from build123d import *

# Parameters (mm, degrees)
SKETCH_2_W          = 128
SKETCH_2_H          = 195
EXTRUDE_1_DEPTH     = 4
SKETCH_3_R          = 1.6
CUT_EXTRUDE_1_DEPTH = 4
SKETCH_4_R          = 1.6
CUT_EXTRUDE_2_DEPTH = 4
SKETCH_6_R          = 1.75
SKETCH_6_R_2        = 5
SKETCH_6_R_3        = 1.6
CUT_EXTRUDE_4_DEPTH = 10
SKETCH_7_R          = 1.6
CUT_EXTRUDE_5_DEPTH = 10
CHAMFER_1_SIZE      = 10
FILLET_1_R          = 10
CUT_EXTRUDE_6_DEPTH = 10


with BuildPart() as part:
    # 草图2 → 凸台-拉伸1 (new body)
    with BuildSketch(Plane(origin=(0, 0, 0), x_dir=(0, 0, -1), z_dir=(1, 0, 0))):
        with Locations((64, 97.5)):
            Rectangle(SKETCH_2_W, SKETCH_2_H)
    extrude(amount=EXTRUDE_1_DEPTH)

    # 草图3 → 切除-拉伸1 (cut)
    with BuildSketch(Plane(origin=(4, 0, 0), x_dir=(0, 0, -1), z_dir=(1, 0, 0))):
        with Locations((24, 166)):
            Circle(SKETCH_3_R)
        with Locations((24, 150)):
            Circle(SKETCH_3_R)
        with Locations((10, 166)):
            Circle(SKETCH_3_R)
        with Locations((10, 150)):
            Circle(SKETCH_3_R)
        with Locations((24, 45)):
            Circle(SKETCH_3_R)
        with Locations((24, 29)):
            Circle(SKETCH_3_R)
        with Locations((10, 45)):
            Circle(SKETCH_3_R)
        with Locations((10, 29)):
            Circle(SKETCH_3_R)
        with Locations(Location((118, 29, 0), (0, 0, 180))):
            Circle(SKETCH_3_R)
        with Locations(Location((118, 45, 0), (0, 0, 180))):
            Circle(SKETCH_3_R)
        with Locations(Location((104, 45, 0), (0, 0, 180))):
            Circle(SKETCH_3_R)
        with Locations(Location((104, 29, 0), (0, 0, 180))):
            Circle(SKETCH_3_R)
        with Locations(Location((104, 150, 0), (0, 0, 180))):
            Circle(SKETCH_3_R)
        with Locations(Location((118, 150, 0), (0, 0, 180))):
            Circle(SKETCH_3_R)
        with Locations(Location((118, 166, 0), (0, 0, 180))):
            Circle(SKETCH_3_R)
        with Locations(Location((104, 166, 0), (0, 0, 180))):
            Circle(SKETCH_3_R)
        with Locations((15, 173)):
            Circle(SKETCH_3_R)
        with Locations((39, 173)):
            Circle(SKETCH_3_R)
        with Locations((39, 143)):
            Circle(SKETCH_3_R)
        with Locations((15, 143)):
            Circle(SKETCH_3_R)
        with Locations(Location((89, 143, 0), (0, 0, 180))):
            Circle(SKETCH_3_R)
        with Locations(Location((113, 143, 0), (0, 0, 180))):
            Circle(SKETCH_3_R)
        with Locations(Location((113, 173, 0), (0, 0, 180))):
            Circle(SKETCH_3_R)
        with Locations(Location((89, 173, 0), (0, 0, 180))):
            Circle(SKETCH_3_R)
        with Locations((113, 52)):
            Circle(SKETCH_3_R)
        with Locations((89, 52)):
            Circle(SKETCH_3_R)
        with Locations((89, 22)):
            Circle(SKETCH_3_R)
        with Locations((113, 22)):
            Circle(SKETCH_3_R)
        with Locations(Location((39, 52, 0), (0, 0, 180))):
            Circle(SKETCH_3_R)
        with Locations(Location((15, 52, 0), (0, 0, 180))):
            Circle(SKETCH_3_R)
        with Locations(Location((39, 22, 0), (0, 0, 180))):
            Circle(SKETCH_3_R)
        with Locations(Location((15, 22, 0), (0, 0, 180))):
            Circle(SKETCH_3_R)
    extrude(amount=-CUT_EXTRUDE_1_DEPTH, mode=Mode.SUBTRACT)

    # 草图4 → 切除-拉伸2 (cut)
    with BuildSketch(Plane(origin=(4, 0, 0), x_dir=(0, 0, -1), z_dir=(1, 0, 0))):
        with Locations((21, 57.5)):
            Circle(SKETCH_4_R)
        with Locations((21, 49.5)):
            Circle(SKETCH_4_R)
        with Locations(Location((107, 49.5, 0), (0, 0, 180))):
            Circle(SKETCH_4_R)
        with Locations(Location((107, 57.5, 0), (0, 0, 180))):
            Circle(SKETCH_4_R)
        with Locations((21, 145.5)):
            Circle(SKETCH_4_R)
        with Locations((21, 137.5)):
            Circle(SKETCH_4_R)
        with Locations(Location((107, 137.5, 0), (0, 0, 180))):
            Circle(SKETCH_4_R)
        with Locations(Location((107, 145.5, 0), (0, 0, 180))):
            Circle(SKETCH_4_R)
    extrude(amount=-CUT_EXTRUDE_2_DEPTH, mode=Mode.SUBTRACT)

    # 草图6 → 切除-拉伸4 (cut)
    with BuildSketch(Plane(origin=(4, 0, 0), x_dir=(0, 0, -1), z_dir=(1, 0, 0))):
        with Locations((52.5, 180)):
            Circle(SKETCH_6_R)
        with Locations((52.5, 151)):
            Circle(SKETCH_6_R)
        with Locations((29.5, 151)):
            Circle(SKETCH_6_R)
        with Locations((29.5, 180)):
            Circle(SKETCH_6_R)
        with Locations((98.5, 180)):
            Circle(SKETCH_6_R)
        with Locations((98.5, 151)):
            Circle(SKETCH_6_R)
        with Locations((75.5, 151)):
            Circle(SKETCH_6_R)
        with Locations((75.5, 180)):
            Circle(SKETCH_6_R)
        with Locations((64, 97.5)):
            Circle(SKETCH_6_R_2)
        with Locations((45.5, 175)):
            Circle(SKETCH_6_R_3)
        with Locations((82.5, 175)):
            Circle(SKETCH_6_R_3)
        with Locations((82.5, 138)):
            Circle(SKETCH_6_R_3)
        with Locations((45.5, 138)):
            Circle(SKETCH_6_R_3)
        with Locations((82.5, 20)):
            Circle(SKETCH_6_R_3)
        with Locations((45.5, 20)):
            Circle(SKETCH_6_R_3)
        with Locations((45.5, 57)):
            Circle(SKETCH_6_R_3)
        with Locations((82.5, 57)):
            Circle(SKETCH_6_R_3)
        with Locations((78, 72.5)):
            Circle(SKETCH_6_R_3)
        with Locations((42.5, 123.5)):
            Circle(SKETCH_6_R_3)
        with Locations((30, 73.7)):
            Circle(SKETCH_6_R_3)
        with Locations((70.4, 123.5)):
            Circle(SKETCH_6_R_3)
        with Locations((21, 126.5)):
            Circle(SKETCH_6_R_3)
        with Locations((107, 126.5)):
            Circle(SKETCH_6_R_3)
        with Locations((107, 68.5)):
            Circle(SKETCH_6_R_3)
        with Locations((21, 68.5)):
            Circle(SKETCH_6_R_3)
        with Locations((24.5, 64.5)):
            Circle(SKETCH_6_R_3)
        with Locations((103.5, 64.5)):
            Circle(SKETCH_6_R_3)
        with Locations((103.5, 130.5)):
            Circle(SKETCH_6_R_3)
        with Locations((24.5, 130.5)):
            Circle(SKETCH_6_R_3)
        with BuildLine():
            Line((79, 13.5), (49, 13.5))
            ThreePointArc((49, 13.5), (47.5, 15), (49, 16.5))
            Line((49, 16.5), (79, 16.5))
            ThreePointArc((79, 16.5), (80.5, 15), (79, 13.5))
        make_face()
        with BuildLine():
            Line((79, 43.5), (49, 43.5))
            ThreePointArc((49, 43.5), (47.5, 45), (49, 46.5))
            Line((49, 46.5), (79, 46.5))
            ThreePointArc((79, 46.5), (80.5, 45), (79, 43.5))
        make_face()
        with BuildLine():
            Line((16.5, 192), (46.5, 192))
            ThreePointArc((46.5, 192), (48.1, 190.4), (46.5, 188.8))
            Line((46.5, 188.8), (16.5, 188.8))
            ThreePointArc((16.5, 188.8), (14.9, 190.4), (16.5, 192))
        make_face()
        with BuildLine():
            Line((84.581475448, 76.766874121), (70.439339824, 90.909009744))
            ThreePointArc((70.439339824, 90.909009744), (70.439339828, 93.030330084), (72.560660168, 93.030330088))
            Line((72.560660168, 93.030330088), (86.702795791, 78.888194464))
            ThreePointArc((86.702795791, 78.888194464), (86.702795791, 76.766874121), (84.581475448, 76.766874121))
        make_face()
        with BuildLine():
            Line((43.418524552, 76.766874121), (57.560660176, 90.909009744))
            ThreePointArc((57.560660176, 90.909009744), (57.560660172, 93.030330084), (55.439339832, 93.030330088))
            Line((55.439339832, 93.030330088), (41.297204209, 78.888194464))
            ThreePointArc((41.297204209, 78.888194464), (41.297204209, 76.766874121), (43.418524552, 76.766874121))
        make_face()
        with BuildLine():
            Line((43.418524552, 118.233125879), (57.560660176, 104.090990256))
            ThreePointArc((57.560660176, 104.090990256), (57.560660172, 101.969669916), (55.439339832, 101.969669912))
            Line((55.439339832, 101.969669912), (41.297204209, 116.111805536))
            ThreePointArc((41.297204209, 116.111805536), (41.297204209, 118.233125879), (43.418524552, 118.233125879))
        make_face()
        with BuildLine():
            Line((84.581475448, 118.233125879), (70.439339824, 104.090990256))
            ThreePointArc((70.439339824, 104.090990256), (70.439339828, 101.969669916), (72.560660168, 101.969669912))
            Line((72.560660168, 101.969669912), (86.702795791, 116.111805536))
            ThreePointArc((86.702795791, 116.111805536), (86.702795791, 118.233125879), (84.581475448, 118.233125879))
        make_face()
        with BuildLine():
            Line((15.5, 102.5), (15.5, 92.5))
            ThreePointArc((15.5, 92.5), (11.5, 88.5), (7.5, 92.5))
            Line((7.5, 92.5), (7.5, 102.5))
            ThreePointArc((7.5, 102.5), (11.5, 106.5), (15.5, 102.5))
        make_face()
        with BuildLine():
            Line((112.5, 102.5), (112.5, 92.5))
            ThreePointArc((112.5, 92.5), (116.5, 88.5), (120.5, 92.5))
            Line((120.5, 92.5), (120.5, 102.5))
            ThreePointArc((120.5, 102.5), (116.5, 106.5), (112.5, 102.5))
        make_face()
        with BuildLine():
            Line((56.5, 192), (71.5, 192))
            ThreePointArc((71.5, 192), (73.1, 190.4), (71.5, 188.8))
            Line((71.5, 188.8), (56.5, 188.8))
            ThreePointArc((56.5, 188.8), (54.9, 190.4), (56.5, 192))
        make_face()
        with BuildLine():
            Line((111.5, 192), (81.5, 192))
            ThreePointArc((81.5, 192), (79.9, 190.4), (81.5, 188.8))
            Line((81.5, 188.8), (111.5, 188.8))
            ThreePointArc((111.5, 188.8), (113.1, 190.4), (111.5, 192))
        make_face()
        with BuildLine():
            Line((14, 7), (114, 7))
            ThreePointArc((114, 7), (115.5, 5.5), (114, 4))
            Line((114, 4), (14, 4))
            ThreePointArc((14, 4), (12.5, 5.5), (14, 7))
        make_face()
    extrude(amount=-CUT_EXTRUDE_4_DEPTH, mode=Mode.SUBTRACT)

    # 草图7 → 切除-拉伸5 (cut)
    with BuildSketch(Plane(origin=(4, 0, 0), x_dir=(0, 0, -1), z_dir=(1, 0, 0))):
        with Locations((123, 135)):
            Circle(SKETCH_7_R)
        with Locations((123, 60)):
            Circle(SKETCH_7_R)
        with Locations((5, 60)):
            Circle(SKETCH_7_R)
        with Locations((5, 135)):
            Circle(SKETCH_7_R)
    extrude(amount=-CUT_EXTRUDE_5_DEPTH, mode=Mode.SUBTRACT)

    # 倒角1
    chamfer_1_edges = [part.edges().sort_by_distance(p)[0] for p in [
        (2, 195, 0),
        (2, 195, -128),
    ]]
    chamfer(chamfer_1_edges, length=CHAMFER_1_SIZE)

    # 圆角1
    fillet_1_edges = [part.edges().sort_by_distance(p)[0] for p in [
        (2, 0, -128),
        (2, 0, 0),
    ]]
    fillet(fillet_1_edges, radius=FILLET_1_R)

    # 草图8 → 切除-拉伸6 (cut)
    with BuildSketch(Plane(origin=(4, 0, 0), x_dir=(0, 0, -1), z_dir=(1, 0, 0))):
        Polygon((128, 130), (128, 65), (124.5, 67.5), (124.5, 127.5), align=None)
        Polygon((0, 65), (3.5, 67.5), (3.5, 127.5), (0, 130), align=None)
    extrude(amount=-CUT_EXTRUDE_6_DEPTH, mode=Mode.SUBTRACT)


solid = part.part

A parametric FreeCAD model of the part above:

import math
import FreeCAD as App
import Part
import Sketcher
from FreeCAD import Vector


def edges_at(feature, points):
    """Names of the edges that pass closest to the given points."""
    edges = feature.Shape.Edges
    near = lambda p: min(range(len(edges)), key=lambda i: edges[i].distToShape(Part.Vertex(*p))[0])
    return sorted({f"Edge{near(p) + 1}" for p in points})


def add_polygon(sketch, points):
    """Adds a closed chain of lines whose ends are joined by coincident constraints."""
    first, n = sketch.GeometryCount, len(points)
    for a, b in zip(points, points[1:] + points[:1]):
        sketch.addGeometry(Part.LineSegment(App.Vector(*a, 0), App.Vector(*b, 0)), False)
    for i in range(n):
        sketch.addConstraint(Sketcher.Constraint("Coincident", first + i, 2, first + (i + 1) % n, 1))

doc = App.newDocument("Part")
body = doc.addObject("PartDesign::Body", "Body")

# Sketch on YZ plane
sketch1 = body.newObject("Sketcher::SketchObject", "Sketch")
sketch1.AttachmentSupport = (doc.getObject("YZ_Plane"), [""])
sketch1.MapMode = "FlatFace"
add_polygon(sketch1, [(195, 0), (0, 0), (0, -128), (195, -128)])  # lines 0-3
sketch1.addConstraint(Sketcher.Constraint("Horizontal", 0))
sketch1.addConstraint(Sketcher.Constraint("Vertical", 1))
sketch1.addConstraint(Sketcher.Constraint("Horizontal", 2))
sketch1.addConstraint(Sketcher.Constraint("Vertical", 3))
sketch1.addConstraint(Sketcher.Constraint("Coincident", 0, 2, -1, 1))
sketch1.addConstraint(Sketcher.Constraint("DistanceX", 0, 2, 0, 1, 195.0))
sketch1.addConstraint(Sketcher.Constraint("DistanceY", 1, 2, 1, 1, 128.0))
pad1 = body.newObject("PartDesign::Pad", "Pad")
pad1.Profile = sketch1
pad1.Length = 4

# Sketch on YZ plane
sketch2 = body.newObject("Sketcher::SketchObject", "Sketch001")
sketch2.AttachmentSupport = (doc.getObject("YZ_Plane"), [""])
sketch2.MapMode = "FlatFace"
sketch2.AttachmentOffset = App.Placement(Vector(0, 0, 4), App.Rotation())
sketch2.addGeometry(Part.Circle(Vector(166, -24, 0), Vector(0, 0, 1), 1.6), False)
sketch2.addGeometry(Part.Circle(Vector(150, -24, 0), Vector(0, 0, 1), 1.6), False)
sketch2.addGeometry(Part.Circle(Vector(166, -10, 0), Vector(0, 0, 1), 1.6), False)
sketch2.addGeometry(Part.Circle(Vector(150, -10, 0), Vector(0, 0, 1), 1.6), False)
sketch2.addGeometry(Part.Circle(Vector(45, -24, 0), Vector(0, 0, 1), 1.6), False)
sketch2.addGeometry(Part.Circle(Vector(29, -24, 0), Vector(0, 0, 1), 1.6), False)
sketch2.addGeometry(Part.Circle(Vector(45, -10, 0), Vector(0, 0, 1), 1.6), False)
sketch2.addGeometry(Part.Circle(Vector(29, -10, 0), Vector(0, 0, 1), 1.6), False)
sketch2.addGeometry(Part.Circle(Vector(29, -118, 0), Vector(0, 0, 1), 1.6), False)
sketch2.addGeometry(Part.Circle(Vector(45, -118, 0), Vector(0, 0, 1), 1.6), False)
sketch2.addGeometry(Part.Circle(Vector(45, -104, 0), Vector(0, 0, 1), 1.6), False)
sketch2.addGeometry(Part.Circle(Vector(29, -104, 0), Vector(0, 0, 1), 1.6), False)
sketch2.addGeometry(Part.Circle(Vector(150, -104, 0), Vector(0, 0, 1), 1.6), False)
sketch2.addGeometry(Part.Circle(Vector(150, -118, 0), Vector(0, 0, 1), 1.6), False)
sketch2.addGeometry(Part.Circle(Vector(166, -118, 0), Vector(0, 0, 1), 1.6), False)
sketch2.addGeometry(Part.Circle(Vector(166, -104, 0), Vector(0, 0, 1), 1.6), False)
sketch2.addGeometry(Part.Circle(Vector(173, -15, 0), Vector(0, 0, 1), 1.6), False)
sketch2.addGeometry(Part.Circle(Vector(173, -39, 0), Vector(0, 0, 1), 1.6), False)
sketch2.addGeometry(Part.Circle(Vector(143, -39, 0), Vector(0, 0, 1), 1.6), False)
sketch2.addGeometry(Part.Circle(Vector(143, -15, 0), Vector(0, 0, 1), 1.6), False)
sketch2.addGeometry(Part.Circle(Vector(143, -89, 0), Vector(0, 0, 1), 1.6), False)
sketch2.addGeometry(Part.Circle(Vector(143, -113, 0), Vector(0, 0, 1), 1.6), False)
sketch2.addGeometry(Part.Circle(Vector(173, -113, 0), Vector(0, 0, 1), 1.6), False)
sketch2.addGeometry(Part.Circle(Vector(173, -89, 0), Vector(0, 0, 1), 1.6), False)
sketch2.addGeometry(Part.Circle(Vector(52, -113, 0), Vector(0, 0, 1), 1.6), False)
sketch2.addGeometry(Part.Circle(Vector(52, -89, 0), Vector(0, 0, 1), 1.6), False)
sketch2.addGeometry(Part.Circle(Vector(22, -89, 0), Vector(0, 0, 1), 1.6), False)
sketch2.addGeometry(Part.Circle(Vector(22, -113, 0), Vector(0, 0, 1), 1.6), False)
sketch2.addGeometry(Part.Circle(Vector(52, -39, 0), Vector(0, 0, 1), 1.6), False)
sketch2.addGeometry(Part.Circle(Vector(52, -15, 0), Vector(0, 0, 1), 1.6), False)
sketch2.addGeometry(Part.Circle(Vector(22, -39, 0), Vector(0, 0, 1), 1.6), False)
sketch2.addGeometry(Part.Circle(Vector(22, -15, 0), Vector(0, 0, 1), 1.6), False)
sketch2.addConstraint(Sketcher.Constraint("Equal", 0, 1))
sketch2.addConstraint(Sketcher.Constraint("Equal", 1, 2))
sketch2.addConstraint(Sketcher.Constraint("Equal", 2, 3))
sketch2.addConstraint(Sketcher.Constraint("Equal", 3, 4))
sketch2.addConstraint(Sketcher.Constraint("Equal", 4, 5))
sketch2.addConstraint(Sketcher.Constraint("Equal", 5, 6))
sketch2.addConstraint(Sketcher.Constraint("Equal", 6, 7))
sketch2.addConstraint(Sketcher.Constraint("Equal", 7, 8))
sketch2.addConstraint(Sketcher.Constraint("Equal", 8, 9))
sketch2.addConstraint(Sketcher.Constraint("Equal", 9, 10))
sketch2.addConstraint(Sketcher.Constraint("Equal", 10, 11))
sketch2.addConstraint(Sketcher.Constraint("Equal", 11, 12))
sketch2.addConstraint(Sketcher.Constraint("Equal", 12, 13))
sketch2.addConstraint(Sketcher.Constraint("Equal", 13, 14))
sketch2.addConstraint(Sketcher.Constraint("Equal", 14, 15))
sketch2.addConstraint(Sketcher.Constraint("Equal", 15, 16))
sketch2.addConstraint(Sketcher.Constraint("Equal", 16, 17))
sketch2.addConstraint(Sketcher.Constraint("Equal", 17, 18))
sketch2.addConstraint(Sketcher.Constraint("Equal", 18, 19))
sketch2.addConstraint(Sketcher.Constraint("Equal", 19, 20))
sketch2.addConstraint(Sketcher.Constraint("Equal", 20, 21))
sketch2.addConstraint(Sketcher.Constraint("Equal", 21, 22))
sketch2.addConstraint(Sketcher.Constraint("Equal", 22, 23))
sketch2.addConstraint(Sketcher.Constraint("Equal", 23, 24))
sketch2.addConstraint(Sketcher.Constraint("Equal", 24, 25))
sketch2.addConstraint(Sketcher.Constraint("Equal", 25, 26))
sketch2.addConstraint(Sketcher.Constraint("Equal", 26, 27))
sketch2.addConstraint(Sketcher.Constraint("Equal", 27, 28))
sketch2.addConstraint(Sketcher.Constraint("Equal", 28, 29))
sketch2.addConstraint(Sketcher.Constraint("Equal", 29, 30))
sketch2.addConstraint(Sketcher.Constraint("Equal", 30, 31))
sketch2.addConstraint(Sketcher.Constraint("Horizontal", 0, 3, 1, 3))
sketch2.addConstraint(Sketcher.Constraint("Horizontal", 2, 3, 3, 3))
sketch2.addConstraint(Sketcher.Constraint("Horizontal", 1, 3, 4, 3))
sketch2.addConstraint(Sketcher.Constraint("Horizontal", 4, 3, 5, 3))
sketch2.addConstraint(Sketcher.Constraint("Horizontal", 3, 3, 6, 3))
sketch2.addConstraint(Sketcher.Constraint("Horizontal", 6, 3, 7, 3))
sketch2.addConstraint(Sketcher.Constraint("Horizontal", 8, 3, 9, 3))
sketch2.addConstraint(Sketcher.Constraint("Horizontal", 10, 3, 11, 3))
sketch2.addConstraint(Sketcher.Constraint("Horizontal", 11, 3, 12, 3))
sketch2.addConstraint(Sketcher.Constraint("Horizontal", 9, 3, 13, 3))
sketch2.addConstraint(Sketcher.Constraint("Horizontal", 13, 3, 14, 3))
sketch2.addConstraint(Sketcher.Constraint("Horizontal", 12, 3, 15, 3))
sketch2.addConstraint(Sketcher.Constraint("Horizontal", 17, 3, 18, 3))
sketch2.addConstraint(Sketcher.Constraint("Horizontal", 16, 3, 19, 3))
sketch2.addConstraint(Sketcher.Constraint("Horizontal", 21, 3, 22, 3))
sketch2.addConstraint(Sketcher.Constraint("Horizontal", 20, 3, 23, 3))
sketch2.addConstraint(Sketcher.Constraint("Horizontal", 22, 3, 24, 3))
sketch2.addConstraint(Sketcher.Constraint("Horizontal", 23, 3, 25, 3))
sketch2.addConstraint(Sketcher.Constraint("Horizontal", 25, 3, 26, 3))
sketch2.addConstraint(Sketcher.Constraint("Horizontal", 24, 3, 27, 3))
sketch2.addConstraint(Sketcher.Constraint("Horizontal", 18, 3, 28, 3))
sketch2.addConstraint(Sketcher.Constraint("Horizontal", 19, 3, 29, 3))
sketch2.addConstraint(Sketcher.Constraint("Horizontal", 28, 3, 30, 3))
sketch2.addConstraint(Sketcher.Constraint("Horizontal", 29, 3, 31, 3))
sketch2.addConstraint(Sketcher.Constraint("Vertical", 0, 3, 2, 3))
sketch2.addConstraint(Sketcher.Constraint("Vertical", 1, 3, 3, 3))
sketch2.addConstraint(Sketcher.Constraint("Vertical", 4, 3, 6, 3))
sketch2.addConstraint(Sketcher.Constraint("Vertical", 5, 3, 7, 3))
sketch2.addConstraint(Sketcher.Constraint("Vertical", 7, 3, 8, 3))
sketch2.addConstraint(Sketcher.Constraint("Vertical", 6, 3, 9, 3))
sketch2.addConstraint(Sketcher.Constraint("Vertical", 9, 3, 10, 3))
sketch2.addConstraint(Sketcher.Constraint("Vertical", 8, 3, 11, 3))
sketch2.addConstraint(Sketcher.Constraint("Vertical", 3, 3, 12, 3))
sketch2.addConstraint(Sketcher.Constraint("Vertical", 12, 3, 13, 3))
sketch2.addConstraint(Sketcher.Constraint("Vertical", 2, 3, 14, 3))
sketch2.addConstraint(Sketcher.Constraint("Vertical", 14, 3, 15, 3))
sketch2.addConstraint(Sketcher.Constraint("Vertical", 16, 3, 17, 3))
sketch2.addConstraint(Sketcher.Constraint("Vertical", 18, 3, 19, 3))
sketch2.addConstraint(Sketcher.Constraint("Vertical", 19, 3, 20, 3))
sketch2.addConstraint(Sketcher.Constraint("Vertical", 20, 3, 21, 3))
sketch2.addConstraint(Sketcher.Constraint("Vertical", 17, 3, 22, 3))
sketch2.addConstraint(Sketcher.Constraint("Vertical", 22, 3, 23, 3))
sketch2.addConstraint(Sketcher.Constraint("Vertical", 24, 3, 25, 3))
sketch2.addConstraint(Sketcher.Constraint("Vertical", 26, 3, 27, 3))
sketch2.addConstraint(Sketcher.Constraint("Vertical", 25, 3, 28, 3))
sketch2.addConstraint(Sketcher.Constraint("Vertical", 28, 3, 29, 3))
sketch2.addConstraint(Sketcher.Constraint("Vertical", 27, 3, 30, 3))
sketch2.addConstraint(Sketcher.Constraint("Vertical", 30, 3, 31, 3))
sketch2.addConstraint(Sketcher.Constraint("Diameter", 0, 3.2))
sketch2.addConstraint(Sketcher.Constraint("DistanceX", -1, 1, 0, 3, 166.0))
sketch2.addConstraint(Sketcher.Constraint("DistanceY", 0, 3, -1, 1, 24.0))
sketch2.addConstraint(Sketcher.Constraint("DistanceX", -1, 1, 1, 3, 150.0))
sketch2.addConstraint(Sketcher.Constraint("DistanceY", 2, 3, -1, 1, 10.0))
sketch2.addConstraint(Sketcher.Constraint("DistanceX", -1, 1, 4, 3, 45.0))
sketch2.addConstraint(Sketcher.Constraint("DistanceX", -1, 1, 5, 3, 29.0))
sketch2.addConstraint(Sketcher.Constraint("DistanceY", 8, 3, -1, 1, 118.0))
sketch2.addConstraint(Sketcher.Constraint("DistanceY", 10, 3, -1, 1, 104.0))
sketch2.addConstraint(Sketcher.Constraint("DistanceX", -1, 1, 16, 3, 173.0))
sketch2.addConstraint(Sketcher.Constraint("DistanceY", 16, 3, -1, 1, 15.0))
sketch2.addConstraint(Sketcher.Constraint("DistanceY", 17, 3, -1, 1, 39.0))
sketch2.addConstraint(Sketcher.Constraint("DistanceX", -1, 1, 18, 3, 143.0))
sketch2.addConstraint(Sketcher.Constraint("DistanceY", 20, 3, -1, 1, 89.0))
sketch2.addConstraint(Sketcher.Constraint("DistanceY", 21, 3, -1, 1, 113.0))
sketch2.addConstraint(Sketcher.Constraint("DistanceX", -1, 1, 24, 3, 52.0))
sketch2.addConstraint(Sketcher.Constraint("DistanceX", -1, 1, 26, 3, 22.0))
pocket1 = body.newObject("PartDesign::Pocket", "Pocket")
pocket1.Profile = sketch2
pocket1.Length = 4

# Sketch on YZ plane
sketch3 = body.newObject("Sketcher::SketchObject", "Sketch002")
sketch3.AttachmentSupport = (doc.getObject("YZ_Plane"), [""])
sketch3.MapMode = "FlatFace"
sketch3.AttachmentOffset = App.Placement(Vector(0, 0, 4), App.Rotation())
sketch3.addGeometry(Part.Circle(Vector(57.5, -21, 0), Vector(0, 0, 1), 1.6), False)
sketch3.addGeometry(Part.Circle(Vector(49.5, -21, 0), Vector(0, 0, 1), 1.6), False)
sketch3.addGeometry(Part.Circle(Vector(49.5, -107, 0), Vector(0, 0, 1), 1.6), False)
sketch3.addGeometry(Part.Circle(Vector(57.5, -107, 0), Vector(0, 0, 1), 1.6), False)
sketch3.addGeometry(Part.Circle(Vector(145.5, -21, 0), Vector(0, 0, 1), 1.6), False)
sketch3.addGeometry(Part.Circle(Vector(137.5, -21, 0), Vector(0, 0, 1), 1.6), False)
sketch3.addGeometry(Part.Circle(Vector(137.5, -107, 0), Vector(0, 0, 1), 1.6), False)
sketch3.addGeometry(Part.Circle(Vector(145.5, -107, 0), Vector(0, 0, 1), 1.6), False)
sketch3.addConstraint(Sketcher.Constraint("Equal", 0, 1))
sketch3.addConstraint(Sketcher.Constraint("Equal", 1, 2))
sketch3.addConstraint(Sketcher.Constraint("Equal", 2, 3))
sketch3.addConstraint(Sketcher.Constraint("Equal", 3, 4))
sketch3.addConstraint(Sketcher.Constraint("Equal", 4, 5))
sketch3.addConstraint(Sketcher.Constraint("Equal", 5, 6))
sketch3.addConstraint(Sketcher.Constraint("Equal", 6, 7))
sketch3.addConstraint(Sketcher.Constraint("Horizontal", 0, 3, 1, 3))
sketch3.addConstraint(Sketcher.Constraint("Horizontal", 2, 3, 3, 3))
sketch3.addConstraint(Sketcher.Constraint("Horizontal", 1, 3, 4, 3))
sketch3.addConstraint(Sketcher.Constraint("Horizontal", 4, 3, 5, 3))
sketch3.addConstraint(Sketcher.Constraint("Horizontal", 3, 3, 6, 3))
sketch3.addConstraint(Sketcher.Constraint("Horizontal", 6, 3, 7, 3))
sketch3.addConstraint(Sketcher.Constraint("Vertical", 1, 3, 2, 3))
sketch3.addConstraint(Sketcher.Constraint("Vertical", 0, 3, 3, 3))
sketch3.addConstraint(Sketcher.Constraint("Vertical", 5, 3, 6, 3))
sketch3.addConstraint(Sketcher.Constraint("Vertical", 4, 3, 7, 3))
sketch3.addConstraint(Sketcher.Constraint("Diameter", 0, 3.2))
sketch3.addConstraint(Sketcher.Constraint("DistanceY", 0, 3, -1, 1, 21.0))
sketch3.addConstraint(Sketcher.Constraint("DistanceY", 2, 3, -1, 1, 107.0))
sketch3.addConstraint(Sketcher.Constraint("DistanceX", 1, 3, 0, 3, 8.0))
sketch3.addConstraint(Sketcher.Constraint("DistanceX", 0, 3, 4, 3, 88.0))
sketch3.addConstraint(Sketcher.Constraint("DistanceX", 5, 3, 4, 3, 8.0))
sketch3.addConstraint(Sketcher.Constraint("DistanceX", -1, 1, 0, 3, 57.5))
pocket2 = body.newObject("PartDesign::Pocket", "Pocket001")
pocket2.Profile = sketch3
pocket2.Length = 4

# Sketch on YZ plane
sketch4 = body.newObject("Sketcher::SketchObject", "Sketch003")
sketch4.AttachmentSupport = (doc.getObject("YZ_Plane"), [""])
sketch4.MapMode = "FlatFace"
sketch4.AttachmentOffset = App.Placement(Vector(0, 0, 4), App.Rotation())
sketch4.addGeometry(Part.Circle(Vector(180, -52.5, 0), Vector(0, 0, 1), 1.8), False)
sketch4.addGeometry(Part.Circle(Vector(151, -52.5, 0), Vector(0, 0, 1), 1.8), False)
sketch4.addGeometry(Part.Circle(Vector(151, -29.5, 0), Vector(0, 0, 1), 1.8), False)
sketch4.addGeometry(Part.Circle(Vector(180, -29.5, 0), Vector(0, 0, 1), 1.8), False)
sketch4.addGeometry(Part.Circle(Vector(180, -98.5, 0), Vector(0, 0, 1), 1.8), False)
sketch4.addGeometry(Part.Circle(Vector(151, -98.5, 0), Vector(0, 0, 1), 1.8), False)
sketch4.addGeometry(Part.Circle(Vector(151, -75.5, 0), Vector(0, 0, 1), 1.8), False)
sketch4.addGeometry(Part.Circle(Vector(180, -75.5, 0), Vector(0, 0, 1), 1.8), False)
sketch4.addGeometry(Part.Circle(Vector(97.5, -64, 0), Vector(0, 0, 1), 5), False)
sketch4.addGeometry(Part.Circle(Vector(175, -45.5, 0), Vector(0, 0, 1), 1.6), False)
sketch4.addGeometry(Part.Circle(Vector(175, -82.5, 0), Vector(0, 0, 1), 1.6), False)
sketch4.addGeometry(Part.Circle(Vector(138, -82.5, 0), Vector(0, 0, 1), 1.6), False)
sketch4.addGeometry(Part.Circle(Vector(138, -45.5, 0), Vector(0, 0, 1), 1.6), False)
sketch4.addGeometry(Part.Circle(Vector(20, -82.5, 0), Vector(0, 0, 1), 1.6), False)
sketch4.addGeometry(Part.Circle(Vector(20, -45.5, 0), Vector(0, 0, 1), 1.6), False)
sketch4.addGeometry(Part.Circle(Vector(57, -45.5, 0), Vector(0, 0, 1), 1.6), False)
sketch4.addGeometry(Part.Circle(Vector(57, -82.5, 0), Vector(0, 0, 1), 1.6), False)
sketch4.addGeometry(Part.Circle(Vector(72.5, -78, 0), Vector(0, 0, 1), 1.6), False)
sketch4.addGeometry(Part.Circle(Vector(123.5, -42.5, 0), Vector(0, 0, 1), 1.6), False)
sketch4.addGeometry(Part.Circle(Vector(73.7, -30, 0), Vector(0, 0, 1), 1.6), False)
sketch4.addGeometry(Part.Circle(Vector(123.5, -70.4, 0), Vector(0, 0, 1), 1.6), False)
sketch4.addGeometry(Part.Circle(Vector(126.5, -21, 0), Vector(0, 0, 1), 1.6), False)
sketch4.addGeometry(Part.Circle(Vector(126.5, -107, 0), Vector(0, 0, 1), 1.6), False)
sketch4.addGeometry(Part.Circle(Vector(68.5, -107, 0), Vector(0, 0, 1), 1.6), False)
sketch4.addGeometry(Part.Circle(Vector(68.5, -21, 0), Vector(0, 0, 1), 1.6), False)
sketch4.addGeometry(Part.Circle(Vector(64.5, -24.5, 0), Vector(0, 0, 1), 1.6), False)
sketch4.addGeometry(Part.Circle(Vector(64.5, -103.5, 0), Vector(0, 0, 1), 1.6), False)
sketch4.addGeometry(Part.Circle(Vector(130.5, -103.5, 0), Vector(0, 0, 1), 1.6), False)
sketch4.addGeometry(Part.Circle(Vector(130.5, -24.5, 0), Vector(0, 0, 1), 1.6), False)
sketch4.addGeometry(Part.LineSegment(Vector(13.5, -49, 0), Vector(13.5, -79, 0)), False)
sketch4.addGeometry(Part.ArcOfCircle(Part.Circle(Vector(15, -79, 0), Vector(0, 0, 1), 1.5), math.radians(180), math.radians(360)), False)
sketch4.addGeometry(Part.LineSegment(Vector(16.5, -79, 0), Vector(16.5, -49, 0)), False)
sketch4.addGeometry(Part.ArcOfCircle(Part.Circle(Vector(15, -49, 0), Vector(0, 0, 1), 1.5), math.radians(0), math.radians(180)), False)
sketch4.addGeometry(Part.LineSegment(Vector(43.5, -49, 0), Vector(43.5, -79, 0)), False)
sketch4.addGeometry(Part.ArcOfCircle(Part.Circle(Vector(45, -79, 0), Vector(0, 0, 1), 1.5), math.radians(180), math.radians(360)), False)
sketch4.addGeometry(Part.LineSegment(Vector(46.5, -79, 0), Vector(46.5, -49, 0)), False)
sketch4.addGeometry(Part.ArcOfCircle(Part.Circle(Vector(45, -49, 0), Vector(0, 0, 1), 1.5), math.radians(0), math.radians(180)), False)
sketch4.addGeometry(Part.LineSegment(Vector(192, -46.5, 0), Vector(192, -16.5, 0)), False)
sketch4.addGeometry(Part.ArcOfCircle(Part.Circle(Vector(190.4, -16.5, 0), Vector(0, 0, 1), 1.6), math.radians(0), math.radians(180)), False)
sketch4.addGeometry(Part.LineSegment(Vector(188.8, -16.5, 0), Vector(188.8, -46.5, 0)), False)
sketch4.addGeometry(Part.ArcOfCircle(Part.Circle(Vector(190.4, -46.5, 0), Vector(0, 0, 1), 1.6), math.radians(180), math.radians(360)), False)
sketch4.addGeometry(Part.LineSegment(Vector(90.9, -70.4, 0), Vector(76.8, -84.6, 0)), False)
sketch4.addGeometry(Part.ArcOfCircle(Part.Circle(Vector(77.8, -85.6, 0), Vector(0, 0, 1), 1.5), math.radians(135), math.radians(315)), False)
sketch4.addGeometry(Part.LineSegment(Vector(78.9, -86.7, 0), Vector(93, -72.6, 0)), False)
sketch4.addGeometry(Part.ArcOfCircle(Part.Circle(Vector(92, -71.5, 0), Vector(0, 0, 1), 1.5), math.radians(-45), math.radians(135)), False)
sketch4.addGeometry(Part.LineSegment(Vector(76.8, -43.4, 0), Vector(90.9, -57.6, 0)), False)
sketch4.addGeometry(Part.ArcOfCircle(Part.Circle(Vector(92, -56.5, 0), Vector(0, 0, 1), 1.5), math.radians(-135), math.radians(45)), False)
sketch4.addGeometry(Part.LineSegment(Vector(93, -55.4, 0), Vector(78.9, -41.3, 0)), False)
sketch4.addGeometry(Part.ArcOfCircle(Part.Circle(Vector(77.8, -42.4, 0), Vector(0, 0, 1), 1.5), math.radians(45), math.radians(225)), False)
sketch4.addGeometry(Part.LineSegment(Vector(104.1, -57.6, 0), Vector(118.2, -43.4, 0)), False)
sketch4.addGeometry(Part.ArcOfCircle(Part.Circle(Vector(117.2, -42.4, 0), Vector(0, 0, 1), 1.5), math.radians(-45), math.radians(135)), False)
sketch4.addGeometry(Part.LineSegment(Vector(116.1, -41.3, 0), Vector(102, -55.4, 0)), False)
sketch4.addGeometry(Part.ArcOfCircle(Part.Circle(Vector(103, -56.5, 0), Vector(0, 0, 1), 1.5), math.radians(135), math.radians(315)), False)
sketch4.addGeometry(Part.LineSegment(Vector(118.2, -84.6, 0), Vector(104.1, -70.4, 0)), False)
sketch4.addGeometry(Part.ArcOfCircle(Part.Circle(Vector(103, -71.5, 0), Vector(0, 0, 1), 1.5), math.radians(45), math.radians(225)), False)
sketch4.addGeometry(Part.LineSegment(Vector(102, -72.6, 0), Vector(116.1, -86.7, 0)), False)
sketch4.addGeometry(Part.ArcOfCircle(Part.Circle(Vector(117.2, -85.6, 0), Vector(0, 0, 1), 1.5), math.radians(-135), math.radians(45)), False)
sketch4.addGeometry(Part.LineSegment(Vector(92.5, -15.5, 0), Vector(102.5, -15.5, 0)), False)
sketch4.addGeometry(Part.ArcOfCircle(Part.Circle(Vector(102.5, -11.5, 0), Vector(0, 0, 1), 4), math.radians(-90), math.radians(90)), False)
sketch4.addGeometry(Part.LineSegment(Vector(102.5, -7.5, 0), Vector(92.5, -7.5, 0)), False)
sketch4.addGeometry(Part.ArcOfCircle(Part.Circle(Vector(92.5, -11.5, 0), Vector(0, 0, 1), 4), math.radians(90), math.radians(270)), False)
sketch4.addGeometry(Part.LineSegment(Vector(102.5, -112.5, 0), Vector(92.5, -112.5, 0)), False)
sketch4.addGeometry(Part.ArcOfCircle(Part.Circle(Vector(92.5, -116.5, 0), Vector(0, 0, 1), 4), math.radians(90), math.radians(270)), False)
sketch4.addGeometry(Part.LineSegment(Vector(92.5, -120.5, 0), Vector(102.5, -120.5, 0)), False)
sketch4.addGeometry(Part.ArcOfCircle(Part.Circle(Vector(102.5, -116.5, 0), Vector(0, 0, 1), 4), math.radians(-90), math.radians(90)), False)
sketch4.addGeometry(Part.LineSegment(Vector(192, -71.5, 0), Vector(192, -56.5, 0)), False)
sketch4.addGeometry(Part.ArcOfCircle(Part.Circle(Vector(190.4, -56.5, 0), Vector(0, 0, 1), 1.6), math.radians(0), math.radians(180)), False)
sketch4.addGeometry(Part.LineSegment(Vector(188.8, -56.5, 0), Vector(188.8, -71.5, 0)), False)
sketch4.addGeometry(Part.ArcOfCircle(Part.Circle(Vector(190.4, -71.5, 0), Vector(0, 0, 1), 1.6), math.radians(180), math.radians(360)), False)
sketch4.addGeometry(Part.LineSegment(Vector(192, -111.5, 0), Vector(192, -81.5, 0)), False)
sketch4.addGeometry(Part.ArcOfCircle(Part.Circle(Vector(190.4, -81.5, 0), Vector(0, 0, 1), 1.6), math.radians(0), math.radians(180)), False)
sketch4.addGeometry(Part.LineSegment(Vector(188.8, -81.5, 0), Vector(188.8, -111.5, 0)), False)
sketch4.addGeometry(Part.ArcOfCircle(Part.Circle(Vector(190.4, -111.5, 0), Vector(0, 0, 1), 1.6), math.radians(180), math.radians(360)), False)
sketch4.addGeometry(Part.LineSegment(Vector(7, -114, 0), Vector(7, -14, 0)), False)
sketch4.addGeometry(Part.ArcOfCircle(Part.Circle(Vector(5.5, -14, 0), Vector(0, 0, 1), 1.5), math.radians(0), math.radians(180)), False)
sketch4.addGeometry(Part.LineSegment(Vector(4, -14, 0), Vector(4, -114, 0)), False)
sketch4.addGeometry(Part.ArcOfCircle(Part.Circle(Vector(5.5, -114, 0), Vector(0, 0, 1), 1.5), math.radians(180), math.radians(360)), False)
sketch4.addConstraint(Sketcher.Constraint("Tangent", 29, 2, 30, 1))
sketch4.addConstraint(Sketcher.Constraint("Tangent", 30, 2, 31, 1))
sketch4.addConstraint(Sketcher.Constraint("Tangent", 31, 2, 32, 1))
sketch4.addConstraint(Sketcher.Constraint("Tangent", 32, 2, 29, 1))
sketch4.addConstraint(Sketcher.Constraint("Tangent", 33, 2, 34, 1))
sketch4.addConstraint(Sketcher.Constraint("Tangent", 34, 2, 35, 1))
sketch4.addConstraint(Sketcher.Constraint("Tangent", 35, 2, 36, 1))
sketch4.addConstraint(Sketcher.Constraint("Tangent", 36, 2, 33, 1))
sketch4.addConstraint(Sketcher.Constraint("Tangent", 37, 2, 38, 1))
sketch4.addConstraint(Sketcher.Constraint("Tangent", 38, 2, 39, 1))
sketch4.addConstraint(Sketcher.Constraint("Tangent", 39, 2, 40, 1))
sketch4.addConstraint(Sketcher.Constraint("Tangent", 40, 2, 37, 1))
sketch4.addConstraint(Sketcher.Constraint("Tangent", 41, 2, 42, 1))
sketch4.addConstraint(Sketcher.Constraint("Tangent", 42, 2, 43, 1))
sketch4.addConstraint(Sketcher.Constraint("Tangent", 43, 2, 44, 1))
sketch4.addConstraint(Sketcher.Constraint("Tangent", 44, 2, 41, 1))
sketch4.addConstraint(Sketcher.Constraint("Tangent", 45, 2, 46, 1))
sketch4.addConstraint(Sketcher.Constraint("Tangent", 46, 2, 47, 1))
sketch4.addConstraint(Sketcher.Constraint("Tangent", 47, 2, 48, 1))
sketch4.addConstraint(Sketcher.Constraint("Tangent", 48, 2, 45, 1))
sketch4.addConstraint(Sketcher.Constraint("Tangent", 49, 2, 50, 1))
sketch4.addConstraint(Sketcher.Constraint("Tangent", 50, 2, 51, 1))
sketch4.addConstraint(Sketcher.Constraint("Tangent", 51, 2, 52, 1))
sketch4.addConstraint(Sketcher.Constraint("Tangent", 52, 2, 49, 1))
sketch4.addConstraint(Sketcher.Constraint("Tangent", 53, 2, 54, 1))
sketch4.addConstraint(Sketcher.Constraint("Tangent", 54, 2, 55, 1))
sketch4.addConstraint(Sketcher.Constraint("Tangent", 55, 2, 56, 1))
sketch4.addConstraint(Sketcher.Constraint("Tangent", 56, 2, 53, 1))
sketch4.addConstraint(Sketcher.Constraint("Tangent", 57, 2, 58, 1))
sketch4.addConstraint(Sketcher.Constraint("Tangent", 58, 2, 59, 1))
sketch4.addConstraint(Sketcher.Constraint("Tangent", 59, 2, 60, 1))
sketch4.addConstraint(Sketcher.Constraint("Tangent", 60, 2, 57, 1))
sketch4.addConstraint(Sketcher.Constraint("Tangent", 61, 2, 62, 1))
sketch4.addConstraint(Sketcher.Constraint("Tangent", 62, 2, 63, 1))
sketch4.addConstraint(Sketcher.Constraint("Tangent", 63, 2, 64, 1))
sketch4.addConstraint(Sketcher.Constraint("Tangent", 64, 2, 61, 1))
sketch4.addConstraint(Sketcher.Constraint("Tangent", 65, 2, 66, 1))
sketch4.addConstraint(Sketcher.Constraint("Tangent", 66, 2, 67, 1))
sketch4.addConstraint(Sketcher.Constraint("Tangent", 67, 2, 68, 1))
sketch4.addConstraint(Sketcher.Constraint("Tangent", 68, 2, 65, 1))
sketch4.addConstraint(Sketcher.Constraint("Tangent", 69, 2, 70, 1))
sketch4.addConstraint(Sketcher.Constraint("Tangent", 70, 2, 71, 1))
sketch4.addConstraint(Sketcher.Constraint("Tangent", 71, 2, 72, 1))
sketch4.addConstraint(Sketcher.Constraint("Tangent", 72, 2, 69, 1))
sketch4.addConstraint(Sketcher.Constraint("Tangent", 73, 2, 74, 1))
sketch4.addConstraint(Sketcher.Constraint("Tangent", 74, 2, 75, 1))
sketch4.addConstraint(Sketcher.Constraint("Tangent", 75, 2, 76, 1))
sketch4.addConstraint(Sketcher.Constraint("Tangent", 76, 2, 73, 1))
sketch4.addConstraint(Sketcher.Constraint("Vertical", 29))
sketch4.addConstraint(Sketcher.Constraint("Vertical", 31))
sketch4.addConstraint(Sketcher.Constraint("Vertical", 33))
sketch4.addConstraint(Sketcher.Constraint("Vertical", 35))
sketch4.addConstraint(Sketcher.Constraint("Vertical", 37))
sketch4.addConstraint(Sketcher.Constraint("Vertical", 39))
sketch4.addConstraint(Sketcher.Constraint("Horizontal", 57))
sketch4.addConstraint(Sketcher.Constraint("Horizontal", 59))
sketch4.addConstraint(Sketcher.Constraint("Horizontal", 61))
sketch4.addConstraint(Sketcher.Constraint("Horizontal", 63))
sketch4.addConstraint(Sketcher.Constraint("Vertical", 65))
sketch4.addConstraint(Sketcher.Constraint("Vertical", 67))
sketch4.addConstraint(Sketcher.Constraint("Vertical", 69))
sketch4.addConstraint(Sketcher.Constraint("Vertical", 71))
sketch4.addConstraint(Sketcher.Constraint("Vertical", 73))
sketch4.addConstraint(Sketcher.Constraint("Vertical", 75))
sketch4.addConstraint(Sketcher.Constraint("Equal", 0, 1))
sketch4.addConstraint(Sketcher.Constraint("Equal", 1, 2))
sketch4.addConstraint(Sketcher.Constraint("Equal", 2, 3))
sketch4.addConstraint(Sketcher.Constraint("Equal", 3, 4))
sketch4.addConstraint(Sketcher.Constraint("Equal", 4, 5))
sketch4.addConstraint(Sketcher.Constraint("Equal", 5, 6))
sketch4.addConstraint(Sketcher.Constraint("Equal", 6, 7))
sketch4.addConstraint(Sketcher.Constraint("Equal", 9, 10))
sketch4.addConstraint(Sketcher.Constraint("Equal", 10, 11))
sketch4.addConstraint(Sketcher.Constraint("Equal", 11, 12))
sketch4.addConstraint(Sketcher.Constraint("Equal", 12, 13))
sketch4.addConstraint(Sketcher.Constraint("Equal", 13, 14))
sketch4.addConstraint(Sketcher.Constraint("Equal", 14, 15))
sketch4.addConstraint(Sketcher.Constraint("Equal", 15, 16))
sketch4.addConstraint(Sketcher.Constraint("Equal", 16, 17))
sketch4.addConstraint(Sketcher.Constraint("Equal", 17, 18))
sketch4.addConstraint(Sketcher.Constraint("Equal", 18, 19))
sketch4.addConstraint(Sketcher.Constraint("Equal", 19, 20))
sketch4.addConstraint(Sketcher.Constraint("Equal", 20, 21))
sketch4.addConstraint(Sketcher.Constraint("Equal", 21, 22))
sketch4.addConstraint(Sketcher.Constraint("Equal", 22, 23))
sketch4.addConstraint(Sketcher.Constraint("Equal", 23, 24))
sketch4.addConstraint(Sketcher.Constraint("Equal", 24, 25))
sketch4.addConstraint(Sketcher.Constraint("Equal", 25, 26))
sketch4.addConstraint(Sketcher.Constraint("Equal", 26, 27))
sketch4.addConstraint(Sketcher.Constraint("Equal", 27, 28))
sketch4.addConstraint(Sketcher.Constraint("Equal", 32, 34))
sketch4.addConstraint(Sketcher.Constraint("Equal", 28, 38))
sketch4.addConstraint(Sketcher.Constraint("Equal", 36, 42))
sketch4.addConstraint(Sketcher.Constraint("Equal", 42, 44))
sketch4.addConstraint(Sketcher.Constraint("Equal", 44, 46))
sketch4.addConstraint(Sketcher.Constraint("Equal", 46, 48))
sketch4.addConstraint(Sketcher.Constraint("Equal", 48, 50))
sketch4.addConstraint(Sketcher.Constraint("Equal", 50, 52))
sketch4.addConstraint(Sketcher.Constraint("Equal", 52, 54))
sketch4.addConstraint(Sketcher.Constraint("Equal", 54, 56))
sketch4.addConstraint(Sketcher.Constraint("Equal", 60, 62))
sketch4.addConstraint(Sketcher.Constraint("Equal", 40, 66))
sketch4.addConstraint(Sketcher.Constraint("Equal", 68, 70))
sketch4.addConstraint(Sketcher.Constraint("Equal", 56, 74))
sketch4.addConstraint(Sketcher.Constraint("Perpendicular", 43, 45))
sketch4.addConstraint(Sketcher.Constraint("Perpendicular", 47, 49))
sketch4.addConstraint(Sketcher.Constraint("Perpendicular", 51, 53))
sketch4.addConstraint(Sketcher.Constraint("Horizontal", 0, 3, 1, 3))
sketch4.addConstraint(Sketcher.Constraint("Horizontal", 2, 3, 3, 3))
sketch4.addConstraint(Sketcher.Constraint("Horizontal", 4, 3, 5, 3))
sketch4.addConstraint(Sketcher.Constraint("Horizontal", 6, 3, 7, 3))
sketch4.addConstraint(Sketcher.Constraint("Horizontal", 10, 3, 11, 3))
sketch4.addConstraint(Sketcher.Constraint("Horizontal", 9, 3, 12, 3))
sketch4.addConstraint(Sketcher.Constraint("Horizontal", 11, 3, 13, 3))
sketch4.addConstraint(Sketcher.Constraint("Horizontal", 12, 3, 14, 3))
sketch4.addConstraint(Sketcher.Constraint("Horizontal", 14, 3, 15, 3))
sketch4.addConstraint(Sketcher.Constraint("Horizontal", 13, 3, 16, 3))
sketch4.addConstraint(Sketcher.Constraint("Horizontal", 22, 3, 23, 3))
sketch4.addConstraint(Sketcher.Constraint("Horizontal", 21, 3, 24, 3))
sketch4.addConstraint(Sketcher.Constraint("Horizontal", 26, 3, 27, 3))
sketch4.addConstraint(Sketcher.Constraint("Horizontal", 25, 3, 28, 3))
sketch4.addConstraint(Sketcher.Constraint("Horizontal", 30, 3, 34, 3))
sketch4.addConstraint(Sketcher.Constraint("Horizontal", 32, 3, 36, 3))
sketch4.addConstraint(Sketcher.Constraint("Horizontal", 48, 3, 50, 3))
sketch4.addConstraint(Sketcher.Constraint("Horizontal", 46, 3, 52, 3))
sketch4.addConstraint(Sketcher.Constraint("Horizontal", 44, 3, 54, 3))
sketch4.addConstraint(Sketcher.Constraint("Horizontal", 42, 3, 56, 3))
sketch4.addConstraint(Sketcher.Constraint("Horizontal", 52, 3, 66, 3))
sketch4.addConstraint(Sketcher.Constraint("Horizontal", 54, 3, 68, 3))
sketch4.addConstraint(Sketcher.Constraint("Horizontal", 48, 2, 49, 2))
sketch4.addConstraint(Sketcher.Constraint("Vertical", 1, 3, 2, 3))
sketch4.addConstraint(Sketcher.Constraint("Vertical", 0, 3, 3, 3))
sketch4.addConstraint(Sketcher.Constraint("Vertical", 3, 3, 4, 3))
sketch4.addConstraint(Sketcher.Constraint("Vertical", 2, 3, 5, 3))
sketch4.addConstraint(Sketcher.Constraint("Vertical", 5, 3, 6, 3))
sketch4.addConstraint(Sketcher.Constraint("Vertical", 4, 3, 7, 3))
sketch4.addConstraint(Sketcher.Constraint("Vertical", 9, 3, 10, 3))
sketch4.addConstraint(Sketcher.Constraint("Vertical", 11, 3, 12, 3))
sketch4.addConstraint(Sketcher.Constraint("Vertical", 13, 3, 14, 3))
sketch4.addConstraint(Sketcher.Constraint("Vertical", 15, 3, 16, 3))
sketch4.addConstraint(Sketcher.Constraint("Vertical", 18, 3, 20, 3))
sketch4.addConstraint(Sketcher.Constraint("Vertical", 21, 3, 22, 3))
sketch4.addConstraint(Sketcher.Constraint("Vertical", 23, 3, 24, 3))
sketch4.addConstraint(Sketcher.Constraint("Vertical", 25, 3, 26, 3))
sketch4.addConstraint(Sketcher.Constraint("Vertical", 27, 3, 28, 3))
sketch4.addConstraint(Sketcher.Constraint("Vertical", 44, 3, 46, 3))
sketch4.addConstraint(Sketcher.Constraint("Vertical", 42, 3, 48, 3))
sketch4.addConstraint(Sketcher.Constraint("Vertical", 52, 3, 54, 3))
sketch4.addConstraint(Sketcher.Constraint("Vertical", 60, 3, 62, 3))
sketch4.addConstraint(Sketcher.Constraint("Vertical", 58, 3, 64, 3))
sketch4.addConstraint(Sketcher.Constraint("Vertical", 40, 3, 66, 3))
sketch4.addConstraint(Sketcher.Constraint("Vertical", 68, 3, 70, 3))
sketch4.addConstraint(Sketcher.Constraint("Equal", 35, 37))
sketch4.addConstraint(Sketcher.Constraint("Equal", 39, 69))
sketch4.addConstraint(Sketcher.Constraint("Diameter", 8, 10.0))
sketch4.addConstraint(Sketcher.Constraint("Radius", 58, 4.0))
sketch4.addConstraint(Sketcher.Constraint("Diameter", 0, 3.5))
sketch4.addConstraint(Sketcher.Constraint("Diameter", 9, 3.2))
sketch4.addConstraint(Sketcher.Constraint("Radius", 30, 1.5))
sketch4.addConstraint(Sketcher.Constraint("DistanceX", 57, 1, 57, 2, 10.0))
sketch4.addConstraint(Sketcher.Constraint("DistanceY", 29, 2, 29, 1, 30.0))
sketch4.addConstraint(Sketcher.Constraint("DistanceY", 65, 1, 65, 2, 15.0))
sketch4.addConstraint(Sketcher.Constraint("DistanceY", 73, 1, 73, 2, 100.0))
sketch4.addConstraint(Sketcher.Constraint("Distance", 41, 20.0))
sketch4.addConstraint(Sketcher.Constraint("DistanceX", -1, 1, 0, 3, 180.0))
sketch4.addConstraint(Sketcher.Constraint("DistanceX", -1, 1, 1, 3, 151.0))
sketch4.addConstraint(Sketcher.Constraint("DistanceY", 8, 3, -1, 1, 64.0))
sketch4.addConstraint(Sketcher.Constraint("DistanceX", -1, 1, 9, 3, 175.0))
sketch4.addConstraint(Sketcher.Constraint("DistanceX", -1, 1, 11, 3, 138.0))
sketch4.addConstraint(Sketcher.Constraint("DistanceX", -1, 1, 13, 3, 20.0))
sketch4.addConstraint(Sketcher.Constraint("DistanceX", -1, 1, 15, 3, 57.0))
sketch4.addConstraint(Sketcher.Constraint("DistanceY", 17, 3, -1, 1, 78.0))
sketch4.addConstraint(Sketcher.Constraint("DistanceY", 19, 3, -1, 1, 30.0))
sketch4.addConstraint(Sketcher.Constraint("DistanceY", 21, 3, -1, 1, 21.0))
sketch4.addConstraint(Sketcher.Constraint("DistanceY", 22, 3, -1, 1, 107.0))
sketch4.addConstraint(Sketcher.Constraint("DistanceX", -1, 1, 30, 3, 15.0))
sketch4.addConstraint(Sketcher.Constraint("DistanceY", 30, 3, -1, 1, 79.0))
sketch4.addConstraint(Sketcher.Constraint("DistanceX", -1, 1, 34, 3, 45.0))
sketch4.addConstraint(Sketcher.Constraint("DistanceY", 74, 3, -1, 1, 14.0))
sketch4.addConstraint(Sketcher.Constraint("DistanceX", -1, 1, 37, 2, 192.0))
sketch4.addConstraint(Sketcher.Constraint("DistanceX", -1, 1, 73, 2, 7.0))
sketch4.addConstraint(Sketcher.Constraint("DistanceY", 0, 3, -1, 1, 52.5))
sketch4.addConstraint(Sketcher.Constraint("DistanceY", 2, 3, -1, 1, 29.5))
sketch4.addConstraint(Sketcher.Constraint("DistanceY", 4, 3, -1, 1, 98.5))
sketch4.addConstraint(Sketcher.Constraint("DistanceY", 6, 3, -1, 1, 75.5))
sketch4.addConstraint(Sketcher.Constraint("DistanceX", -1, 1, 8, 3, 97.5))
sketch4.addConstraint(Sketcher.Constraint("DistanceY", 9, 3, -1, 1, 45.5))
sketch4.addConstraint(Sketcher.Constraint("DistanceY", 10, 3, -1, 1, 82.5))
sketch4.addConstraint(Sketcher.Constraint("DistanceX", -1, 1, 17, 3, 72.5))
sketch4.addConstraint(Sketcher.Constraint("DistanceX", -1, 1, 18, 3, 123.5))
sketch4.addConstraint(Sketcher.Constraint("DistanceY", 18, 3, -1, 1, 42.5))
sketch4.addConstraint(Sketcher.Constraint("DistanceX", -1, 1, 19, 3, 73.7))
sketch4.addConstraint(Sketcher.Constraint("DistanceY", 20, 3, -1, 1, 70.4))
sketch4.addConstraint(Sketcher.Constraint("DistanceX", -1, 1, 21, 3, 126.5))
sketch4.addConstraint(Sketcher.Constraint("DistanceX", -1, 1, 23, 3, 68.5))
sketch4.addConstraint(Sketcher.Constraint("DistanceX", -1, 1, 25, 3, 64.5))
sketch4.addConstraint(Sketcher.Constraint("DistanceY", 25, 3, -1, 1, 24.5))
sketch4.addConstraint(Sketcher.Constraint("DistanceY", 26, 3, -1, 1, 103.5))
sketch4.addConstraint(Sketcher.Constraint("DistanceX", -1, 1, 27, 3, 130.5))
sketch4.addConstraint(Sketcher.Constraint("DistanceY", 38, 3, -1, 1, 16.5))
sketch4.addConstraint(Sketcher.Constraint("DistanceY", 44, 3, -1, 1, 71.5))
sketch4.addConstraint(Sketcher.Constraint("DistanceX", -1, 1, 58, 3, 102.5))
sketch4.addConstraint(Sketcher.Constraint("DistanceY", 58, 3, -1, 1, 11.5))
sketch4.addConstraint(Sketcher.Constraint("DistanceY", 62, 3, -1, 1, 116.5))
sketch4.addConstraint(Sketcher.Constraint("DistanceY", 70, 3, -1, 1, 81.5))
sketch4.addConstraint(Sketcher.Constraint("DistanceX", -1, 1, 44, 3, 91.96967))
sketch4.addConstraint(Sketcher.Constraint("DistanceX", -1, 1, 52, 3, 103.03033))
pocket3 = body.newObject("PartDesign::Pocket", "Pocket002")
pocket3.Profile = sketch4
pocket3.Length = 10

# Sketch on YZ plane
sketch5 = body.newObject("Sketcher::SketchObject", "Sketch004")
sketch5.AttachmentSupport = (doc.getObject("YZ_Plane"), [""])
sketch5.MapMode = "FlatFace"
sketch5.AttachmentOffset = App.Placement(Vector(0, 0, 4), App.Rotation())
sketch5.addGeometry(Part.Circle(Vector(135, -123, 0), Vector(0, 0, 1), 1.6), False)
sketch5.addGeometry(Part.Circle(Vector(60, -123, 0), Vector(0, 0, 1), 1.6), False)
sketch5.addGeometry(Part.Circle(Vector(60, -5, 0), Vector(0, 0, 1), 1.6), False)
sketch5.addGeometry(Part.Circle(Vector(135, -5, 0), Vector(0, 0, 1), 1.6), False)
sketch5.addConstraint(Sketcher.Constraint("Equal", 0, 1))
sketch5.addConstraint(Sketcher.Constraint("Equal", 1, 2))
sketch5.addConstraint(Sketcher.Constraint("Equal", 2, 3))
sketch5.addConstraint(Sketcher.Constraint("Horizontal", 0, 3, 1, 3))
sketch5.addConstraint(Sketcher.Constraint("Horizontal", 2, 3, 3, 3))
sketch5.addConstraint(Sketcher.Constraint("Vertical", 1, 3, 2, 3))
sketch5.addConstraint(Sketcher.Constraint("Vertical", 0, 3, 3, 3))
sketch5.addConstraint(Sketcher.Constraint("Diameter", 0, 3.2))
sketch5.addConstraint(Sketcher.Constraint("DistanceX", -1, 1, 0, 3, 135.0))
sketch5.addConstraint(Sketcher.Constraint("DistanceY", 0, 3, -1, 1, 123.0))
sketch5.addConstraint(Sketcher.Constraint("DistanceX", -1, 1, 1, 3, 60.0))
sketch5.addConstraint(Sketcher.Constraint("DistanceY", 2, 3, -1, 1, 5.0))
pocket4 = body.newObject("PartDesign::Pocket", "Pocket003")
pocket4.Profile = sketch5
pocket4.Length = 10
doc.recompute()

chamfer = body.newObject("PartDesign::Chamfer", "Chamfer")
chamfer.Base = (pocket4, edges_at(pocket4, [(2, 195, 0), (2, 195, -128)]))
chamfer.Size = 10
doc.recompute()

fillet = body.newObject("PartDesign::Fillet", "Fillet")
fillet.Base = (chamfer, edges_at(chamfer, [(2, 0, -128), (2, 0, 0)]))
fillet.Radius = 10

# Sketch on YZ plane
sketch6 = body.newObject("Sketcher::SketchObject", "Sketch005")
sketch6.AttachmentSupport = (doc.getObject("YZ_Plane"), [""])
sketch6.MapMode = "FlatFace"
sketch6.AttachmentOffset = App.Placement(Vector(0, 0, 4), App.Rotation())
add_polygon(sketch6, [(65, -128), (130, -128), (127.5, -124.5), (67.5, -124.5)])  # lines 0-3
add_polygon(sketch6, [(65, 0), (67.5, -3.5), (127.5, -3.5), (130, 0)])  # lines 4-7
sketch6.addConstraint(Sketcher.Constraint("Horizontal", 0))
sketch6.addConstraint(Sketcher.Constraint("Horizontal", 2))
sketch6.addConstraint(Sketcher.Constraint("Horizontal", 5))
sketch6.addConstraint(Sketcher.Constraint("Horizontal", 7))
sketch6.addConstraint(Sketcher.Constraint("PointOnObject", 6, 2, -1))
sketch6.addConstraint(Sketcher.Constraint("Parallel", 1, 4))
sketch6.addConstraint(Sketcher.Constraint("Parallel", 3, 6))
sketch6.addConstraint(Sketcher.Constraint("Vertical", 2, 2, 4, 2))
sketch6.addConstraint(Sketcher.Constraint("Vertical", 1, 2, 5, 2))
sketch6.addConstraint(Sketcher.Constraint("Vertical", 0, 2, 6, 2))
sketch6.addConstraint(Sketcher.Constraint("Vertical", 3, 2, 7, 2))
sketch6.addConstraint(Sketcher.Constraint("DistanceX", 0, 1, 0, 2, 65.0))
sketch6.addConstraint(Sketcher.Constraint("DistanceX", 2, 2, 2, 1, 60.0))
sketch6.addConstraint(Sketcher.Constraint("DistanceX", -1, 1, 0, 2, 130.0))
sketch6.addConstraint(Sketcher.Constraint("DistanceY", 0, 2, -1, 1, 128.0))
sketch6.addConstraint(Sketcher.Constraint("DistanceY", 2, 2, 4, 2, 121.0))
pocket5 = body.newObject("PartDesign::Pocket", "Pocket004")
pocket5.Profile = sketch6
pocket5.Length = 10

doc.recompute()
